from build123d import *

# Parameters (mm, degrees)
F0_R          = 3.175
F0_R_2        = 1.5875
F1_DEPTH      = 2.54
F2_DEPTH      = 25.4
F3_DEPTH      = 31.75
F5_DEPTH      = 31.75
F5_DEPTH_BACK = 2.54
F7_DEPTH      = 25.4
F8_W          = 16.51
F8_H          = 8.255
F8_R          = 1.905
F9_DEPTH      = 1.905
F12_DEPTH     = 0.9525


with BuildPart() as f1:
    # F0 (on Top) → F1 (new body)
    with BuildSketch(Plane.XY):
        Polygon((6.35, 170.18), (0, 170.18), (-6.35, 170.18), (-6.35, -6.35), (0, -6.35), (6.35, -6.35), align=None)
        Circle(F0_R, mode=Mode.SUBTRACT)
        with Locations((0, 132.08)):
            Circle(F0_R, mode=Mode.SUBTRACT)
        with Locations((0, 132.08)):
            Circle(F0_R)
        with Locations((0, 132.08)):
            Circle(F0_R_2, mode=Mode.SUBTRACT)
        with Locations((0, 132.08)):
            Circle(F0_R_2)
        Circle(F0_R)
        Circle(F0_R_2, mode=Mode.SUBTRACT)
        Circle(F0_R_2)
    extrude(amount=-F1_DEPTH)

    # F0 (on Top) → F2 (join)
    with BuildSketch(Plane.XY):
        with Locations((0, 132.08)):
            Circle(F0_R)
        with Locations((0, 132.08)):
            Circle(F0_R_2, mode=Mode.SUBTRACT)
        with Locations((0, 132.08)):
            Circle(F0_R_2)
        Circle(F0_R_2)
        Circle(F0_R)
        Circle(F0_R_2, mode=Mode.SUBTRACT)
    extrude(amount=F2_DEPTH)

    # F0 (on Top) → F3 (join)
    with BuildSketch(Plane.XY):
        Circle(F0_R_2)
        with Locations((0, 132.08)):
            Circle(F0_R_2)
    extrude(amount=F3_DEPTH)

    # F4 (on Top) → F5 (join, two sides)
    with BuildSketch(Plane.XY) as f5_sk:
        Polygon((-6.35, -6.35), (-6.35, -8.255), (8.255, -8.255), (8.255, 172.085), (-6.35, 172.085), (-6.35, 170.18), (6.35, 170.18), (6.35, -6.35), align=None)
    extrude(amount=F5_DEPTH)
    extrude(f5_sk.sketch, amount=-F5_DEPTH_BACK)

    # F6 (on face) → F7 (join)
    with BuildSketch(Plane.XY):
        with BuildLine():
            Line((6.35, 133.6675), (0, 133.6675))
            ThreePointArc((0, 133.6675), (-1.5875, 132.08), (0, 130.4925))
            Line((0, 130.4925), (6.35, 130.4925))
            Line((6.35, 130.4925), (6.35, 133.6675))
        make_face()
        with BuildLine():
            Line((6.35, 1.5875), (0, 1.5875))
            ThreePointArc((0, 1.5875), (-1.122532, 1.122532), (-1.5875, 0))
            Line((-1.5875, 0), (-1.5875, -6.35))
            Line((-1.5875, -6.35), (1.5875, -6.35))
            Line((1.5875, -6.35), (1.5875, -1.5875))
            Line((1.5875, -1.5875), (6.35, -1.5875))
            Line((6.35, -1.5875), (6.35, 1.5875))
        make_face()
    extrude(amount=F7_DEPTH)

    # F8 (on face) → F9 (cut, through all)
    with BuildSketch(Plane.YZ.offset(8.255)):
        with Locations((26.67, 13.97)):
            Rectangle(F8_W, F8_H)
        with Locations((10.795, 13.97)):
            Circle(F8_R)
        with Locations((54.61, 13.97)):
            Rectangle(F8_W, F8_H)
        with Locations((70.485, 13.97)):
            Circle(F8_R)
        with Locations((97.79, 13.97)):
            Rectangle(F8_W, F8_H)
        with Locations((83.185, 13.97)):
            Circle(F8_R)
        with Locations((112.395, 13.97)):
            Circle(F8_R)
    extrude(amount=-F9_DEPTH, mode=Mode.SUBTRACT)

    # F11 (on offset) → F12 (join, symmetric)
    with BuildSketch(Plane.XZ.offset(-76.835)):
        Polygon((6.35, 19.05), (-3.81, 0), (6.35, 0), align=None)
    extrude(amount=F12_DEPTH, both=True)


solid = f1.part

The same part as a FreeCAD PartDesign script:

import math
import FreeCAD as App
import Part
import Sketcher
from FreeCAD import Vector
Q = App.Units.Quantity


def add_polygon(sketch, points):
    """Adds a closed chain of lines whose ends are joined by coincident constraints."""
    first, n = sketch.GeometryCount, len(points)
    for a, b in zip(points, points[1:] + points[:1]):
        sketch.addGeometry(Part.LineSegment(App.Vector(*a, 0), App.Vector(*b, 0)), False)
    for i in range(n):
        sketch.addConstraint(Sketcher.Constraint("Coincident", first + i, 2, first + (i + 1) % n, 1))

doc = App.newDocument("Part")
body = doc.addObject("PartDesign::Body", "Body")

# Sketch on XY plane
sketch1 = body.newObject("Sketcher::SketchObject", "Sketch")
sketch1.AttachmentSupport = (doc.getObject("XY_Plane"), [""])
sketch1.MapMode = "FlatFace"
add_polygon(sketch1, [(6.35, 170.18), (-6.35, 170.18), (-6.35, -6.35), (6.35, -6.35)])  # lines 0-3
sketch1.addConstraint([
    Sketcher.Constraint("Horizontal", 0),
    Sketcher.Constraint("Vertical", 1),
    Sketcher.Constraint("Horizontal", 2),
    Sketcher.Constraint("Vertical", 3),
    Sketcher.Constraint("DistanceX", 0, 2, 0, 1, Q("0.5 in")),
    Sketcher.Constraint("DistanceY", 1, 2, 1, 1, Q("6.95 in")),
    Sketcher.Constraint("DistanceY", -1, 1, 0, 2, Q("6.7 in")),
    Sketcher.Constraint("DistanceX", 0, 2, -1, 1, Q("0.25 in")),
])
pad1 = body.newObject("PartDesign::Pad", "Pad")
pad1.Profile = sketch1
pad1.Length = Q("0.1 in")
pad1.Reversed = True

# Sketch on XY plane
sketch2 = body.newObject("Sketcher::SketchObject", "Sketch001")
sketch2.AttachmentSupport = (doc.getObject("XY_Plane"), [""])
sketch2.MapMode = "FlatFace"
sketch2.addGeometry([
    Part.Circle(Vector(0, 132.08, 0), Vector(0, 0, 1), 3.175),
    Part.Circle(Vector(0, 0, 0), Vector(0, 0, 1), 3.175),
    Part.Circle(Vector(0, 0, 0), Vector(0, 0, 1), 1.5875),
], False)
sketch2.addConstraint([
    Sketcher.Constraint("Coincident", 1, 3, -1, 1),
    Sketcher.Constraint("Coincident", 2, 3, -1, 1),
    Sketcher.Constraint("Equal", 0, 1),
    Sketcher.Constraint("PointOnObject", 0, 3, -2),
    Sketcher.Constraint("Diameter", 0, Q("0.25 in")),
    Sketcher.Constraint("Diameter", 2, Q("0.125 in")),
    Sketcher.Constraint("DistanceY", -1, 1, 0, 3, Q("5.2 in")),
])
pad2 = body.newObject("PartDesign::Pad", "Pad001")
pad2.Profile = sketch2
pad2.Length = Q("1 in")

# Sketch on XY plane
sketch3 = body.newObject("Sketcher::SketchObject", "Sketch002")
sketch3.AttachmentSupport = (doc.getObject("XY_Plane"), [""])
sketch3.MapMode = "FlatFace"
sketch3.addGeometry([
    Part.Circle(Vector(0, 0, 0), Vector(0, 0, 1), 1.5875),
    Part.Circle(Vector(0, 132.08, 0), Vector(0, 0, 1), 1.5875),
], False)
sketch3.addConstraint([
    Sketcher.Constraint("Coincident", 0, 3, -1, 1),
    Sketcher.Constraint("Equal", 0, 1),
    Sketcher.Constraint("PointOnObject", 1, 3, -2),
    Sketcher.Constraint("Diameter", 0, Q("0.125 in")),
    Sketcher.Constraint("DistanceY", -1, 1, 1, 3, Q("5.2 in")),
])
pad3 = body.newObject("PartDesign::Pad", "Pad002")
pad3.Profile = sketch3
pad3.Length = Q("1.25 in")

# Sketch on XY plane
sketch4 = body.newObject("Sketcher::SketchObject", "Sketch003")
sketch4.AttachmentSupport = (doc.getObject("XY_Plane"), [""])
sketch4.MapMode = "FlatFace"
add_polygon(sketch4, [(-6.35, -6.35), (-6.35, -8.255), (8.255, -8.255), (8.255, 172.085), (-6.35, 172.085), (-6.35, 170.18), (6.35, 170.18), (6.35, -6.35)])  # lines 0-7
sketch4.addConstraint([
    Sketcher.Constraint("Vertical", 0),
    Sketcher.Constraint("Horizontal", 1),
    Sketcher.Constraint("Vertical", 2),
    Sketcher.Constraint("Horizontal", 3),
    Sketcher.Constraint("Vertical", 4),
    Sketcher.Constraint("Horizontal", 5),
    Sketcher.Constraint("Vertical", 6),
    Sketcher.Constraint("Horizontal", 7),
    Sketcher.Constraint("Vertical", 0, 2, 3, 2),
    Sketcher.Constraint("Equal", 0, 4),
    Sketcher.Constraint("DistanceX", 5, 1, 5, 2, Q("0.5 in")),
    Sketcher.Constraint("DistanceY", 2, 1, 2, 2, Q("7.1 in")),
    Sketcher.Constraint("DistanceY", 6, 2, 6, 1, Q("6.95 in")),
    Sketcher.Constraint("DistanceY", -1, 1, 4, 2, Q("6.7 in")),
    Sketcher.Constraint("DistanceX", 1, 1, 1, 2, Q("0.575 in")),
    Sketcher.Constraint("DistanceX", 0, 2, -1, 1, Q("0.25 in")),
])
pad4 = body.newObject("PartDesign::Pad", "Pad003")
pad4.Profile = sketch4
pad4.Type = "TwoLengths"
pad4.Length = Q("1.25 in")
pad4.Length2 = Q("0.1 in")

# Sketch on XY plane
sketch5 = body.newObject("Sketcher::SketchObject", "Sketch004")
sketch5.AttachmentSupport = (doc.getObject("XY_Plane"), [""])
sketch5.MapMode = "FlatFace"
sketch5.addGeometry([
    Part.LineSegment(Vector(6.35, 133.6675, 0), Vector(0, 133.6675, 0)),  # 0
    Part.ArcOfCircle(Part.Circle(Vector(0, 132.08, 0), Vector(0, 0, 1), 1.5875), math.radians(90), math.radians(270)),  # 1
    Part.LineSegment(Vector(0, 130.4925, 0), Vector(6.35, 130.4925, 0)),  # 2
    Part.LineSegment(Vector(6.35, 130.4925, 0), Vector(6.35, 133.6675, 0)),  # 3
    Part.LineSegment(Vector(6.35, 1.5875, 0), Vector(0, 1.5875, 0)),  # 4
    Part.ArcOfCircle(Part.Circle(Vector(0, 0, 0), Vector(0, 0, 1), 1.5875), math.radians(90.000002), math.radians(179.999998)),  # 5
    Part.LineSegment(Vector(-1.5875, 0, 0), Vector(-1.5875, -6.35, 0)),  # 6
    Part.LineSegment(Vector(-1.5875, -6.35, 0), Vector(1.5875, -6.35, 0)),  # 7
    Part.LineSegment(Vector(1.5875, -6.35, 0), Vector(1.5875, -1.5875, 0)),  # 8
    Part.LineSegment(Vector(1.5875, -1.5875, 0), Vector(6.35, -1.5875, 0)),  # 9
    Part.LineSegment(Vector(6.35, -1.5875, 0), Vector(6.35, 1.5875, 0)),  # 10
], False)
sketch5.addConstraint([
    Sketcher.Constraint("Tangent", 0, 2, 1, 1),
    Sketcher.Constraint("Tangent", 1, 2, 2, 1),
    Sketcher.Constraint("Coincident", 2, 2, 3, 1),
    Sketcher.Constraint("Coincident", 3, 2, 0, 1),
    Sketcher.Constraint("Tangent", 4, 2, 5, 1),
    Sketcher.Constraint("Tangent", 5, 2, 6, 1),
    Sketcher.Constraint("Coincident", 6, 2, 7, 1),
    Sketcher.Constraint("Coincident", 7, 2, 8, 1),
    Sketcher.Constraint("Coincident", 8, 2, 9, 1),
    Sketcher.Constraint("Coincident", 9, 2, 10, 1),
    Sketcher.Constraint("Coincident", 10, 2, 4, 1),
    Sketcher.Constraint("Horizontal", 0),
    Sketcher.Constraint("Horizontal", 2),
    Sketcher.Constraint("Vertical", 3),
    Sketcher.Constraint("Horizontal", 4),
    Sketcher.Constraint("Vertical", 6),
    Sketcher.Constraint("Horizontal", 7),
    Sketcher.Constraint("Vertical", 8),
    Sketcher.Constraint("Horizontal", 9),
    Sketcher.Constraint("Vertical", 10),
    Sketcher.Constraint("Coincident", 5, 3, -1, 1),
    Sketcher.Constraint("Equal", 1, 5),
    Sketcher.Constraint("PointOnObject", 1, 3, -2),
    Sketcher.Constraint("Vertical", 3, 2, 9, 2),
    Sketcher.Constraint("Equal", 7, 3),
    Sketcher.Constraint("Equal", 4, 6),
    Sketcher.Constraint("Equal", 9, 8),
    Sketcher.Constraint("Radius", 1, Q("0.0625 in")),
    Sketcher.Constraint("DistanceX", 0, 2, 0, 1, Q("0.25 in")),
    Sketcher.Constraint("DistanceY", -1, 1, 1, 3, Q("5.2 in")),
])
pad5 = body.newObject("PartDesign::Pad", "Pad004")
pad5.Profile = sketch5
pad5.Length = Q("1 in")

# Sketch on YZ plane
sketch6 = body.newObject("Sketcher::SketchObject", "Sketch005")
sketch6.AttachmentSupport = (doc.getObject("YZ_Plane"), [""])
sketch6.MapMode = "FlatFace"
sketch6.AttachmentOffset = App.Placement(Vector(0, 0, 0.325 * 25.4), App.Rotation())
add_polygon(sketch6, [(18.415, 18.0975), (18.415, 9.8425), (34.925, 9.8425), (34.925, 18.0975)])  # lines 0-3
sketch6.addGeometry(Part.Circle(Vector(10.795, 13.97, 0), Vector(0, 0, 1), 1.905), False)  # 4
add_polygon(sketch6, [(46.355, 18.0975), (46.355, 9.8425), (62.865, 9.8425), (62.865, 18.0975)])  # lines 5-8
sketch6.addGeometry(Part.Circle(Vector(70.485, 13.97, 0), Vector(0, 0, 1), 1.905), False)  # 9
add_polygon(sketch6, [(89.535, 18.0975), (89.535, 9.8425), (106.045, 9.8425), (106.045, 18.0975)])  # lines 10-13
sketch6.addGeometry(Part.Circle(Vector(83.185, 13.97, 0), Vector(0, 0, 1), 1.905), False)  # 14
sketch6.addGeometry(Part.Circle(Vector(112.395, 13.97, 0), Vector(0, 0, 1), 1.905), False)  # 15
sketch6.addConstraint([
    Sketcher.Constraint("Vertical", 0),
    Sketcher.Constraint("Horizontal", 1),
    Sketcher.Constraint("Vertical", 2),
    Sketcher.Constraint("Horizontal", 3),
    Sketcher.Constraint("Vertical", 5),
    Sketcher.Constraint("Horizontal", 6),
    Sketcher.Constraint("Vertical", 7),
    Sketcher.Constraint("Horizontal", 8),
    Sketcher.Constraint("Vertical", 10),
    Sketcher.Constraint("Horizontal", 11),
    Sketcher.Constraint("Vertical", 12),
    Sketcher.Constraint("Horizontal", 13),
    Sketcher.Constraint("Equal", 4, 9),
    Sketcher.Constraint("Equal", 9, 14),
    Sketcher.Constraint("Equal", 14, 15),
    Sketcher.Constraint("Horizontal", 4, 3, 9, 3),
    Sketcher.Constraint("Horizontal", 9, 3, 14, 3),
    Sketcher.Constraint("Horizontal", 14, 3, 15, 3),
    Sketcher.Constraint("Horizontal", 1, 2, 5, 2),
    Sketcher.Constraint("Horizontal", 3, 2, 7, 2),
    Sketcher.Constraint("Horizontal", 6, 2, 10, 2),
    Sketcher.Constraint("Horizontal", 8, 2, 12, 2),
    Sketcher.Constraint("Equal", 3, 6),
    Sketcher.Constraint("Equal", 8, 11),
    Sketcher.Constraint("Diameter", 4, Q("0.15 in")),
    Sketcher.Constraint("DistanceX", 4, 3, 15, 3, Q("4 in")),
    Sketcher.Constraint("DistanceX", 1, 1, 1, 2, Q("0.65 in")),
    Sketcher.Constraint("DistanceX", 9, 3, 14, 3, Q("0.5 in")),
    Sketcher.Constraint("DistanceX", 4, 3, 0, 2, Q("0.3 in")),
    Sketcher.Constraint("DistanceX", 1, 2, 9, 3, Q("1.4 in")),
    Sketcher.Constraint("DistanceX", 0, 2, 5, 2, Q("1.1 in")),
    Sketcher.Constraint("DistanceX", 10, 2, 15, 3, Q("0.9 in")),
    Sketcher.Constraint("DistanceY", 0, 2, 0, 1, Q("0.325 in")),
    Sketcher.Constraint("DistanceY", -1, 1, 4, 3, Q("0.55 in")),
    Sketcher.Constraint("DistanceX", -1, 1, 4, 3, Q("0.425 in")),
    Sketcher.Constraint("DistanceY", -1, 1, 0, 2, Q("0.3875 in")),
])
pocket1 = body.newObject("PartDesign::Pocket", "Pocket")
pocket1.Profile = sketch6
pocket1.Type = "ThroughAll"

# Sketch on XZ plane
sketch7 = body.newObject("Sketcher::SketchObject", "Sketch006")
sketch7.AttachmentSupport = (doc.getObject("XZ_Plane"), [""])
sketch7.MapMode = "FlatFace"
sketch7.AttachmentOffset = App.Placement(Vector(0, 0, -3.025 * 25.4), App.Rotation())
add_polygon(sketch7, [(6.35, 19.05), (-3.81, 0), (6.35, 0)])  # lines 0-2
sketch7.addConstraint([
    Sketcher.Constraint("Horizontal", 1),
    Sketcher.Constraint("Vertical", 2),
    Sketcher.Constraint("PointOnObject", 0, 2, -1),
    Sketcher.Constraint("DistanceX", 1, 1, 1, 2, Q("0.4 in")),
    Sketcher.Constraint("DistanceY", 2, 1, 2, 2, Q("0.75 in")),
    Sketcher.Constraint("DistanceX", 0, 2, -1, 1, Q("0.15 in")),
])
pad6 = body.newObject("PartDesign::Pad", "Pad005")
pad6.Profile = sketch7
pad6.Length = Q("0.075 in")
pad6.Midplane = True

doc.recompute()
